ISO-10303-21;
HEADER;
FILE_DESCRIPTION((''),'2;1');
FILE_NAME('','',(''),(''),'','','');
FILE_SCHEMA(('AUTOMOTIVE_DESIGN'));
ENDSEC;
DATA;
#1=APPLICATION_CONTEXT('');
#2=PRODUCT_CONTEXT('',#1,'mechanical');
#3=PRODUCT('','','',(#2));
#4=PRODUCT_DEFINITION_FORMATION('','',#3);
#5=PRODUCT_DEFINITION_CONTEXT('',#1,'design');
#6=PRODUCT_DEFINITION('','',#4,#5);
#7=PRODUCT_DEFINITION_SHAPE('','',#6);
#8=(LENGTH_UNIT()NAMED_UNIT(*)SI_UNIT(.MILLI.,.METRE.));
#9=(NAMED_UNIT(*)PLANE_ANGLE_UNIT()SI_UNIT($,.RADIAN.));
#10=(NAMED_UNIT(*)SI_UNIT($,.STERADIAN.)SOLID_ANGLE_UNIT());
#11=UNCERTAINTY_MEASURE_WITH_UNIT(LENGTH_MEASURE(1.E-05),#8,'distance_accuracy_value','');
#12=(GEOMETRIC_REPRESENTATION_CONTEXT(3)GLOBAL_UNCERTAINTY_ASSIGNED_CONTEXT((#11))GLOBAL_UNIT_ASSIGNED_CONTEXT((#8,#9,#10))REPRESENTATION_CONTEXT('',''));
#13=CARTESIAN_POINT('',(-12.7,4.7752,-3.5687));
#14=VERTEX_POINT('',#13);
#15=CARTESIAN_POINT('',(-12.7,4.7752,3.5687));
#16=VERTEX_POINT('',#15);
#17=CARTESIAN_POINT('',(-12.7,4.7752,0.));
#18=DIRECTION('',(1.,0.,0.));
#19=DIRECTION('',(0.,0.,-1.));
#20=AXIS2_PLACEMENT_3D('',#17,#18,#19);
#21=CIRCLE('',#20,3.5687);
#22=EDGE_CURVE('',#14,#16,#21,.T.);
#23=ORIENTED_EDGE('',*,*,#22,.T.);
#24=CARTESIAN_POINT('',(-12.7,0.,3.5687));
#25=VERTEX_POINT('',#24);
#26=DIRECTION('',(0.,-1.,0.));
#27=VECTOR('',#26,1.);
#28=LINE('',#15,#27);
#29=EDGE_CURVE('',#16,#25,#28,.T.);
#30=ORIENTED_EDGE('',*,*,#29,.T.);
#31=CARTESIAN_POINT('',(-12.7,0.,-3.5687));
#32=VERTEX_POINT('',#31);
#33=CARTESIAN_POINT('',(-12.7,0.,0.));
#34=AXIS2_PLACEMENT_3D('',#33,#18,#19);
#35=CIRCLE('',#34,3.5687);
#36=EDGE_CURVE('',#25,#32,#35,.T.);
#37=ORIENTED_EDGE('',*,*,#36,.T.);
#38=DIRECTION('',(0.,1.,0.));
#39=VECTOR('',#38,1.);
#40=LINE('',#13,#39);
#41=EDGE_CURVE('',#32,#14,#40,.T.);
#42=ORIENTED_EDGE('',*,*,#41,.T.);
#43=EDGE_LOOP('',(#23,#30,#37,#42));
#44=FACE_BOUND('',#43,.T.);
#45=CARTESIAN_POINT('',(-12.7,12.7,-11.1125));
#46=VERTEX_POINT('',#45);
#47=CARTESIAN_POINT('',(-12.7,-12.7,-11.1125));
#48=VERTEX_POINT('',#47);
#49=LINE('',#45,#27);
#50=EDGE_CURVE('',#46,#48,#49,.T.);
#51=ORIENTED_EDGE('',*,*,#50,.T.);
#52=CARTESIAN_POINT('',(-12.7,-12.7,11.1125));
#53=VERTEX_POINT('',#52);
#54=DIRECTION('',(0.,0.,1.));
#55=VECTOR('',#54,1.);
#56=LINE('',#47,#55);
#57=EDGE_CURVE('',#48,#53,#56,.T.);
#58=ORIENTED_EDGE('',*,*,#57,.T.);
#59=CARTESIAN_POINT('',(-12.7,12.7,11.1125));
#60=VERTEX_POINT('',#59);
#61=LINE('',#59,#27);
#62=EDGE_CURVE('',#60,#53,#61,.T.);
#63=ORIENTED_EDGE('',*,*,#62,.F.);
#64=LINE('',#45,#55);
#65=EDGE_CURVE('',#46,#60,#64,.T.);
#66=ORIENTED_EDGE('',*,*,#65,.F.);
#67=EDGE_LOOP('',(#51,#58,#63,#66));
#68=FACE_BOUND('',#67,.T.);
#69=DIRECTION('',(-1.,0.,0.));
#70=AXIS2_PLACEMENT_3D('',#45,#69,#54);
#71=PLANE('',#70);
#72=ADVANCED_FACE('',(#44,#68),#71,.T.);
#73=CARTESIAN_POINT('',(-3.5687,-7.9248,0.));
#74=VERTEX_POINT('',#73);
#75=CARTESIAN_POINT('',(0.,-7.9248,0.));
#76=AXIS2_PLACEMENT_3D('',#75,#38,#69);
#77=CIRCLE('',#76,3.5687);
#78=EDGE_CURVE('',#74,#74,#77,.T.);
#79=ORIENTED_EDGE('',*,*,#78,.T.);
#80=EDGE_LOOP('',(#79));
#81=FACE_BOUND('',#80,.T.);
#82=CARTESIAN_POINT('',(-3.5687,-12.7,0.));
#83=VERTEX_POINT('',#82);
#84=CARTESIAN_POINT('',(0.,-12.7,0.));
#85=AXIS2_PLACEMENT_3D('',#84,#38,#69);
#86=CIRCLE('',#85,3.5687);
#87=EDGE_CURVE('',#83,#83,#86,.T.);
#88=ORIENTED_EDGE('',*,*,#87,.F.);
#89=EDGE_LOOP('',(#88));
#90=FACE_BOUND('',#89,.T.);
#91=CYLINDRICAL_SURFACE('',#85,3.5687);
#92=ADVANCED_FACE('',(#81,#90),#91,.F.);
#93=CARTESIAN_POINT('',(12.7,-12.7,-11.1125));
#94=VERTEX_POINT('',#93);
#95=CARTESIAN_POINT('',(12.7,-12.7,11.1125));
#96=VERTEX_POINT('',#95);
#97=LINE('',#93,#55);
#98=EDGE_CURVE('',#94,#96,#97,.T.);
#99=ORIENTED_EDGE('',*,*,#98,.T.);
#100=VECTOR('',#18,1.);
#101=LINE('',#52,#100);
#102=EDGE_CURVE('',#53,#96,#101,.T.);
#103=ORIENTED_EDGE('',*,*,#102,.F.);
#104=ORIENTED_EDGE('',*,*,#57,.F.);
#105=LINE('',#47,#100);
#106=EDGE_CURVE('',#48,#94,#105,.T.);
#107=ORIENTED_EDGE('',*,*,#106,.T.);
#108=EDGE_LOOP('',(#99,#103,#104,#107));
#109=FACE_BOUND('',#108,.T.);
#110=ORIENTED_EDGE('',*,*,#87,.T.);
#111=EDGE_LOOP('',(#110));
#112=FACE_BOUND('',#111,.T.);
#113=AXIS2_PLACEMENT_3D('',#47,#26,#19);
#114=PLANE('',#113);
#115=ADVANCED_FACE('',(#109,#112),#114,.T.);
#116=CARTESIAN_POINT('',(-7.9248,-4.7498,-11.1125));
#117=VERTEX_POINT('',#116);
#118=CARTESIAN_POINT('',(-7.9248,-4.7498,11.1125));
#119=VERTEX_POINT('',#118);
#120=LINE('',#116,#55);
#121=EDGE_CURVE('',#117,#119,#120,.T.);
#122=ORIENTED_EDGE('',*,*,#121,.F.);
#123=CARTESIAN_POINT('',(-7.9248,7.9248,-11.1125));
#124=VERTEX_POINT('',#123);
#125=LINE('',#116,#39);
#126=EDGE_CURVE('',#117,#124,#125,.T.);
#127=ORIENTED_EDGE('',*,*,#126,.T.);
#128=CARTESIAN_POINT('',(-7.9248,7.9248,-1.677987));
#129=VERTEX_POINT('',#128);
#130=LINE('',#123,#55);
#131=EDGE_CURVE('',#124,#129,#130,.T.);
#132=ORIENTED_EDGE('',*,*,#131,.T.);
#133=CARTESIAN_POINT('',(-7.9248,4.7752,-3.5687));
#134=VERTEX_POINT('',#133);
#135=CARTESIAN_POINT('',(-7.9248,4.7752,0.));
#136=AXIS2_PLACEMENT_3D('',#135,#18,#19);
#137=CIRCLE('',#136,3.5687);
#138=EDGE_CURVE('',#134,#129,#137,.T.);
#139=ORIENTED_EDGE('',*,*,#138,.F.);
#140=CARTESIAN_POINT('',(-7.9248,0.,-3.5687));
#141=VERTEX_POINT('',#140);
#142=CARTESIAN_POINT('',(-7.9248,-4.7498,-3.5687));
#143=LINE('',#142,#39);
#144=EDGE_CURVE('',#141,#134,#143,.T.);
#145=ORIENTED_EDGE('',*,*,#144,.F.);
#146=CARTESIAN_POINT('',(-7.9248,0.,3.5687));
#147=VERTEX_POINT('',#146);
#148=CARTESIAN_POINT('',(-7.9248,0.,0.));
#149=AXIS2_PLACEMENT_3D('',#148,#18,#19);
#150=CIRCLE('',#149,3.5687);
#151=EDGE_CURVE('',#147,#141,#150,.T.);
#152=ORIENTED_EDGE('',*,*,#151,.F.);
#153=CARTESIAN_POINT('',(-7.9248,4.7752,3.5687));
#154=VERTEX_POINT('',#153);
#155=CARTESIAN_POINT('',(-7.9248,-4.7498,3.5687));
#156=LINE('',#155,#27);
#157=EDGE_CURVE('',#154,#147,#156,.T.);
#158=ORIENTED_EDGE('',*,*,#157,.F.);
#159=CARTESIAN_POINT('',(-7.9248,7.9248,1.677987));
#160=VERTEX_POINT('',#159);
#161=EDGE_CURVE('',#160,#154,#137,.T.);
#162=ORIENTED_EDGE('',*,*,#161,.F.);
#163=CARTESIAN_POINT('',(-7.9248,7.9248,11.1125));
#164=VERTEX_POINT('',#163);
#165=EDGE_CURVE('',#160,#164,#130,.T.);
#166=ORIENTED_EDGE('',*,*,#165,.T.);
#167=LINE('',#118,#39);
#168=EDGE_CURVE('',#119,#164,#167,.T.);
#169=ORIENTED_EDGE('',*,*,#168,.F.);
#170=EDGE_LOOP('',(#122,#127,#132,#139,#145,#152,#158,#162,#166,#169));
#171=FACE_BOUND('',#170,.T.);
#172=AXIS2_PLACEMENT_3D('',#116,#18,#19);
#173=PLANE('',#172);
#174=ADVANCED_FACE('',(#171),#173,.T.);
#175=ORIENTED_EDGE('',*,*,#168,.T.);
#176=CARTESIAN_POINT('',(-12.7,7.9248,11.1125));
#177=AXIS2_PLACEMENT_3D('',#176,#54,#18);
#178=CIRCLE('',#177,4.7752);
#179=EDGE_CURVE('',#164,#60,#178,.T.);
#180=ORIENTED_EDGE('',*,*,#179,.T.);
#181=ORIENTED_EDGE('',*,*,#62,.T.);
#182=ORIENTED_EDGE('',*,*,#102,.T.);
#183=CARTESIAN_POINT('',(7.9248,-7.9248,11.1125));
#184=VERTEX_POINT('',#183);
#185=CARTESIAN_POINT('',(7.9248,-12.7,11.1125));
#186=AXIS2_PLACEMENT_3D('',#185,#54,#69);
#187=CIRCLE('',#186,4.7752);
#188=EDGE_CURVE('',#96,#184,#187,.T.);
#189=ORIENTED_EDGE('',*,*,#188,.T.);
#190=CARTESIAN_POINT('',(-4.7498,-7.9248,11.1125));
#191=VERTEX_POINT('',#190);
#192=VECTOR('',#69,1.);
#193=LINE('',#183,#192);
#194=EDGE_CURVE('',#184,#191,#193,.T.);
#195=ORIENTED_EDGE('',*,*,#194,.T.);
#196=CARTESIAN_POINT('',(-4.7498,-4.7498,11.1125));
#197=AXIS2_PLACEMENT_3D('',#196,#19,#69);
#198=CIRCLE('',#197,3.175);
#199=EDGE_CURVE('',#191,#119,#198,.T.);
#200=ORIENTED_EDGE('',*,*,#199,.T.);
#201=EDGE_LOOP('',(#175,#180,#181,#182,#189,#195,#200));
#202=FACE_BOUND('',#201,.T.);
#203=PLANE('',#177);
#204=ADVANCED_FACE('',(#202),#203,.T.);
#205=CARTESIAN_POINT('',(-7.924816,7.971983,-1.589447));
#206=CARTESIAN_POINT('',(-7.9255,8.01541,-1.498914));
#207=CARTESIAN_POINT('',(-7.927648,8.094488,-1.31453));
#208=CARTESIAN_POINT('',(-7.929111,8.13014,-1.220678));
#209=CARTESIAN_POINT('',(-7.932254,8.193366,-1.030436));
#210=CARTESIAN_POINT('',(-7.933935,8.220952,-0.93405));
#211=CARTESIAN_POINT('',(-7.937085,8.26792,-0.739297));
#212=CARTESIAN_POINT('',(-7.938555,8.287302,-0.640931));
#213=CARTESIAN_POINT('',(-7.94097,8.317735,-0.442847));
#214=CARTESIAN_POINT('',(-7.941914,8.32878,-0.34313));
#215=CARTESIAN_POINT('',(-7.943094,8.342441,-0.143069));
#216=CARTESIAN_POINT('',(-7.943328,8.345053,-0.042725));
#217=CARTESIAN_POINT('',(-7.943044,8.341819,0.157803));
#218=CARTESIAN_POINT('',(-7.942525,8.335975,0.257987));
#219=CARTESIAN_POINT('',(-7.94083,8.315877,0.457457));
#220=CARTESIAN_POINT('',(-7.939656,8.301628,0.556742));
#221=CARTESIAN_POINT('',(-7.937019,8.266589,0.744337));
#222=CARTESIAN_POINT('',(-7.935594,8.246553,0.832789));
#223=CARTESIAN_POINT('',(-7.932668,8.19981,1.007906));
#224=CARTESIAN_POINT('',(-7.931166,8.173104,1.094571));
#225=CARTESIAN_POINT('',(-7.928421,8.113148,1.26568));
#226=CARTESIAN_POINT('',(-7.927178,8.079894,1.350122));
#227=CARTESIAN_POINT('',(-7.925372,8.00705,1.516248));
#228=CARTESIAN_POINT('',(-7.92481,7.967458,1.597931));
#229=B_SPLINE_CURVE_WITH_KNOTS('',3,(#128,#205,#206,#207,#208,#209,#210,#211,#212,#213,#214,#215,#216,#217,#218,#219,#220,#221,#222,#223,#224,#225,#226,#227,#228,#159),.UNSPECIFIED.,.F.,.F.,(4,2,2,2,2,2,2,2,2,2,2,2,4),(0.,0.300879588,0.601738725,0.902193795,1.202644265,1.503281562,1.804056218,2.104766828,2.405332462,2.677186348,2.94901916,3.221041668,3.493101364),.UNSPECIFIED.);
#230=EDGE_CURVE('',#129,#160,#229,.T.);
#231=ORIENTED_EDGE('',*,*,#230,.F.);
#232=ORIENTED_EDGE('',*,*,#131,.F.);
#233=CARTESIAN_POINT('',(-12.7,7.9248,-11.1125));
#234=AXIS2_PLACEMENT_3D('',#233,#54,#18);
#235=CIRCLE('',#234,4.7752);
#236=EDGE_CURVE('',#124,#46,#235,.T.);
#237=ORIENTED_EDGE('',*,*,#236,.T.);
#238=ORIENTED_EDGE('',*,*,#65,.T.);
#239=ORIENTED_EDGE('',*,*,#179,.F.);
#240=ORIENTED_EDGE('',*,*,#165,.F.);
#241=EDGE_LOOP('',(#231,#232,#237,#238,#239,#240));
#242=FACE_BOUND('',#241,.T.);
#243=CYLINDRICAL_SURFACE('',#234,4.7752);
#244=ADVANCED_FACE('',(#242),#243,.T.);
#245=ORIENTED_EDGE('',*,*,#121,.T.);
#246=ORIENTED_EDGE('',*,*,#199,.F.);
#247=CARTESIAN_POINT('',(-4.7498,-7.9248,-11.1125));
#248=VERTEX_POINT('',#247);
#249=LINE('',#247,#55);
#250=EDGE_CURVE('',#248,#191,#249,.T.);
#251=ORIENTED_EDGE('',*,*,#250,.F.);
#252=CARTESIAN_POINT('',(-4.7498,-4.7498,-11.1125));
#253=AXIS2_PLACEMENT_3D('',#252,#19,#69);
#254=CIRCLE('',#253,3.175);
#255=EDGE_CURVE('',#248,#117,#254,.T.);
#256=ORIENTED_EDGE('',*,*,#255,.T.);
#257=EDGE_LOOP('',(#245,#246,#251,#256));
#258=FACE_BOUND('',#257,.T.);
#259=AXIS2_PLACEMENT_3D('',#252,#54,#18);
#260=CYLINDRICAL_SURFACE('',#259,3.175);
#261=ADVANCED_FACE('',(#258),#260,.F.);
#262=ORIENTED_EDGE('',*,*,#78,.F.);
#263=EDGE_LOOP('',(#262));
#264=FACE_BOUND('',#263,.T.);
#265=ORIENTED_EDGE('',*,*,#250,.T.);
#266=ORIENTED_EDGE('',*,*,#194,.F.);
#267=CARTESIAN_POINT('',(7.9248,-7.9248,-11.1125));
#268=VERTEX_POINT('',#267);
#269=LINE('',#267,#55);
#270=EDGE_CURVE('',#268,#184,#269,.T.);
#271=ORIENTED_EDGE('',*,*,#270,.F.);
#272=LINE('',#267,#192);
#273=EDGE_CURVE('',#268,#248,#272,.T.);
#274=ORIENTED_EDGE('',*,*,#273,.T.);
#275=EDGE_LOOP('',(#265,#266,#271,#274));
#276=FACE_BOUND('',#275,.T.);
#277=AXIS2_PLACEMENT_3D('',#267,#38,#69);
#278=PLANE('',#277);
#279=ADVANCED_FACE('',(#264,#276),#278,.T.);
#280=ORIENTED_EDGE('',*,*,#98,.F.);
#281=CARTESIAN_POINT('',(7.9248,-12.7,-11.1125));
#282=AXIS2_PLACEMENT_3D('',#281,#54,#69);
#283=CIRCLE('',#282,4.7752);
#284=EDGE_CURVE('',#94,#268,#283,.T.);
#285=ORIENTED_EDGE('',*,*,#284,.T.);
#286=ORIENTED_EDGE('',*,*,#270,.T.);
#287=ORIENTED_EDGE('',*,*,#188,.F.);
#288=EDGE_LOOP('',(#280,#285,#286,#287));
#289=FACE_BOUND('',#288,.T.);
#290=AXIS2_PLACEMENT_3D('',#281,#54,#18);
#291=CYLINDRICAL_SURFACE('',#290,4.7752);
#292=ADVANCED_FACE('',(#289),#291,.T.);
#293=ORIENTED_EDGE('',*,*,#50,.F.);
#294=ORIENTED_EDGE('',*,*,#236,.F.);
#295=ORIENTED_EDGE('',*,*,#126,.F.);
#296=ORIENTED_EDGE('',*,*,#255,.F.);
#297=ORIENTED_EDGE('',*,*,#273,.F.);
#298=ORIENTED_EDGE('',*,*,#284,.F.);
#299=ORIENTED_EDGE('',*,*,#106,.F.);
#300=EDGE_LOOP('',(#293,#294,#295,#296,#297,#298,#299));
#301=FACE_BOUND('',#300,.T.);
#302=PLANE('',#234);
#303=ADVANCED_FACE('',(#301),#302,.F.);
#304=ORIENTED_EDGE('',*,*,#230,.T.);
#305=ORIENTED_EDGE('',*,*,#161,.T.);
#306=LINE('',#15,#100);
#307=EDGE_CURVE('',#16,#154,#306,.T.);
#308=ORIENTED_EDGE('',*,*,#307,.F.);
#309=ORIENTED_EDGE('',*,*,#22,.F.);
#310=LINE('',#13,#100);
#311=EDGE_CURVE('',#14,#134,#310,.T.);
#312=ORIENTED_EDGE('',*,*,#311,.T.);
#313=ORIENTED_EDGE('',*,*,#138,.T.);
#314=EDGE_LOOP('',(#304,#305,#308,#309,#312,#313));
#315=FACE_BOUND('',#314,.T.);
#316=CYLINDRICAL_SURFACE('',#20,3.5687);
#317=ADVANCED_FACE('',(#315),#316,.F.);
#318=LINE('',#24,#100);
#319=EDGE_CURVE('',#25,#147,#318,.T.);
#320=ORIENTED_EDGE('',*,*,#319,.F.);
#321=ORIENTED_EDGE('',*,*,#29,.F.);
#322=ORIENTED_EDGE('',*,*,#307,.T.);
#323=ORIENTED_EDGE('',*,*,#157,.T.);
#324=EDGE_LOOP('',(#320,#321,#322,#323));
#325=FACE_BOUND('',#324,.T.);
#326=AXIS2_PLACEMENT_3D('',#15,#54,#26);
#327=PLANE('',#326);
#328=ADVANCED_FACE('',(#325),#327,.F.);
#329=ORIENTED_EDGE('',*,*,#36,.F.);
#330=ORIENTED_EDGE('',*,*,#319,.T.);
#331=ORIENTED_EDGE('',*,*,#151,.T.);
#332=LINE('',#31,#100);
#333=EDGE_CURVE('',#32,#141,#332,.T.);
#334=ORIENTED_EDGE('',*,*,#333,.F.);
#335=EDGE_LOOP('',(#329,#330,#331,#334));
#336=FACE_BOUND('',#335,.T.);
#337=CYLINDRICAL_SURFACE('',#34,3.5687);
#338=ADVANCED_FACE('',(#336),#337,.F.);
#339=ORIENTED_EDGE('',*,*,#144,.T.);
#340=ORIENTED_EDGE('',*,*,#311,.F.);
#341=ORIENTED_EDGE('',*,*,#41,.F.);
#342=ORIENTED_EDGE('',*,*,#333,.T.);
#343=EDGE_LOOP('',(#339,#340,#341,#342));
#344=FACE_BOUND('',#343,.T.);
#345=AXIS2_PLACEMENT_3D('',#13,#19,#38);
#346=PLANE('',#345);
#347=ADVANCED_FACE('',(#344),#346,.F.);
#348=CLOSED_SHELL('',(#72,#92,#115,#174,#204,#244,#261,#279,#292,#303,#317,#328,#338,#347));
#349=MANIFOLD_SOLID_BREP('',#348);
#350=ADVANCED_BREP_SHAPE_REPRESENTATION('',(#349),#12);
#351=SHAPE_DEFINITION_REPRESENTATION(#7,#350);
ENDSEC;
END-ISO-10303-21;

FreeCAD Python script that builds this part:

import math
import FreeCAD as App
import Part
import Sketcher

V = App.Vector
Q = App.Units.Quantity

doc = App.newDocument("Part")
params = doc.addObject("Spreadsheet::Sheet", "Params")
for row, (alias, value) in enumerate([
    ("sketch1_width", "1 in"),
    ("sketch1_radius", "0.188 in"),
    ("sketch1_radius2", "0.125 in"),
    ("pad1_length", "0.4375 in"),
    ("pad1_length2", "0.4375 in"),
    ("sketch2_width", "0.188 in"),
    ("sketch3_diameter", "0.281 in"),
], start=1):
    params.set(f"A{row}", alias)
    params.set(f"B{row}", "=" + value)
    params.setAlias(f"B{row}", alias)

body = doc.addObject("PartDesign::Body", "Body")

# Sketch on XY plane
sketch1 = body.newObject("Sketcher::SketchObject", "Sketch")
sketch1.AttachmentSupport = (doc.getObject("XY_Plane"), [""])
sketch1.MapMode = "FlatFace"
sketch1.addGeometry(Part.LineSegment(V(-12.7, 12.7, 0), V(-12.7, -12.7, 0)), False)
sketch1.addGeometry(Part.LineSegment(V(-12.7, -12.7, 0), V(12.7, -12.7, 0)), False)
sketch1.addGeometry(Part.ArcOfCircle(Part.Circle(V(7.9, -12.7, 0), V(0, 0, 1), 4.8), math.radians(0), math.radians(90)), False)
sketch1.addGeometry(Part.LineSegment(V(7.9, -7.9, 0), V(-4.7, -7.9, 0)), False)
sketch1.addGeometry(Part.ArcOfCircle(Part.Circle(V(-4.7, -4.7, 0), V(0, 0, 1), 3.2), math.radians(-180), math.radians(-90)), False)
sketch1.addGeometry(Part.LineSegment(V(-7.9, -4.7, 0), V(-7.9, 7.9, 0)), False)
sketch1.addGeometry(Part.ArcOfCircle(Part.Circle(V(-12.7, 7.9, 0), V(0, 0, 1), 4.8), math.radians(0), math.radians(90)), False)
sketch1.addConstraint(Sketcher.Constraint("Coincident", 0, 2, 1, 1))
sketch1.addConstraint(Sketcher.Constraint("Coincident", 1, 2, 2, 1))
sketch1.addConstraint(Sketcher.Constraint("Tangent", 2, 2, 3, 1))
sketch1.addConstraint(Sketcher.Constraint("Tangent", 3, 2, 4, 2))
sketch1.addConstraint(Sketcher.Constraint("Tangent", 4, 1, 5, 1))
sketch1.addConstraint(Sketcher.Constraint("Tangent", 5, 2, 6, 1))
sketch1.addConstraint(Sketcher.Constraint("Coincident", 6, 2, 0, 1))
sketch1.addConstraint(Sketcher.Constraint("Vertical", 0))
sketch1.addConstraint(Sketcher.Constraint("Horizontal", 1))
sketch1.addConstraint(Sketcher.Constraint("Horizontal", 3))
sketch1.addConstraint(Sketcher.Constraint("Vertical", 5))
sketch1.addConstraint(Sketcher.Constraint("Equal", 2, 6))
sketch1.addConstraint(Sketcher.Constraint("Symmetric", 2, 2, 5, 2, -1, 1))
sketch1.addConstraint(Sketcher.Constraint("Symmetric", 1, 2, 6, 2, -1, 1))
sketch1.addConstraint(Sketcher.Constraint("Equal", 1, 0))
sketch1.addConstraint(Sketcher.Constraint("DistanceX", 1, 1, 1, 2, Q("1 in")))
sketch1.addConstraint(Sketcher.Constraint("Radius", 2, Q("0.188 in")))
sketch1.addConstraint(Sketcher.Constraint("Radius", 4, Q("0.125 in")))
sketch1.setExpression("Constraints[15]", "Params.sketch1_width")
sketch1.setExpression("Constraints[16]", "Params.sketch1_radius")
sketch1.setExpression("Constraints[17]", "Params.sketch1_radius2")
pad1 = body.newObject("PartDesign::Pad", "Pad")
pad1.Profile = sketch1
pad1.Type = "TwoLengths"
pad1.setExpression("Length", "Params.pad1_length")
pad1.setExpression("Length2", "Params.pad1_length2")

# Sketch on YZ plane
sketch2 = body.newObject("Sketcher::SketchObject", "Sketch001")
sketch2.AttachmentSupport = (doc.getObject("YZ_Plane"), [""])
sketch2.MapMode = "FlatFace"
sketch2.AttachmentOffset = App.Placement(V(0, 0, -0.312 * 25.4), App.Rotation())
sketch2.addGeometry(Part.LineSegment(V(0, -3.6, 0), V(4.8, -3.6, 0)), False)
sketch2.addGeometry(Part.ArcOfCircle(Part.Circle(V(4.8, 0, 0), V(0, 0, 1), 3.6), math.radians(-90), math.radians(90)), False)
sketch2.addGeometry(Part.LineSegment(V(4.8, 3.6, 0), V(0, 3.6, 0)), False)
sketch2.addGeometry(Part.ArcOfCircle(Part.Circle(V(0, 0, 0), V(0, 0, 1), 3.6), math.radians(90), math.radians(270)), False)
sketch2.addConstraint(Sketcher.Constraint("Tangent", 0, 2, 1, 1))
sketch2.addConstraint(Sketcher.Constraint("Tangent", 1, 2, 2, 1))
sketch2.addConstraint(Sketcher.Constraint("Tangent", 2, 2, 3, 1))
sketch2.addConstraint(Sketcher.Constraint("Tangent", 3, 2, 0, 1))
sketch2.addConstraint(Sketcher.Constraint("Horizontal", 0))
sketch2.addConstraint(Sketcher.Constraint("Horizontal", 2))
sketch2.addConstraint(Sketcher.Constraint("Coincident", 3, 3, -1, 1))
sketch2.addConstraint(Sketcher.Constraint("Radius", 1, Q("0.1405 in")))
sketch2.addConstraint(Sketcher.Constraint("DistanceX", 0, 1, 0, 2, Q("0.188 in")))
sketch2.setExpression("Constraints[8]", "Params.sketch2_width")
pocket1 = body.newObject("PartDesign::Pocket", "Pocket")
pocket1.Profile = sketch2
pocket1.Type = "ThroughAll"
pocket1.Midplane = True

# Sketch on XZ plane
sketch3 = body.newObject("Sketcher::SketchObject", "Sketch002")
sketch3.AttachmentSupport = (doc.getObject("XZ_Plane"), [""])
sketch3.MapMode = "FlatFace"
sketch3.AttachmentOffset = App.Placement(V(0, 0, 0.312 * 25.4), App.Rotation())
sketch3.addGeometry(Part.Circle(V(0, 0, 0), V(0, 0, 1), 3.6), False)
sketch3.addConstraint(Sketcher.Constraint("Coincident", 0, 3, -1, 1))
sketch3.addConstraint(Sketcher.Constraint("Diameter", 0, Q("0.281 in")))
sketch3.setExpression("Constraints[1]", "Params.sketch3_diameter")
pocket2 = body.newObject("PartDesign::Pocket", "Pocket001")
pocket2.Profile = sketch3
pocket2.Type = "ThroughAll"
pocket2.Reversed = True

doc.recompute()
